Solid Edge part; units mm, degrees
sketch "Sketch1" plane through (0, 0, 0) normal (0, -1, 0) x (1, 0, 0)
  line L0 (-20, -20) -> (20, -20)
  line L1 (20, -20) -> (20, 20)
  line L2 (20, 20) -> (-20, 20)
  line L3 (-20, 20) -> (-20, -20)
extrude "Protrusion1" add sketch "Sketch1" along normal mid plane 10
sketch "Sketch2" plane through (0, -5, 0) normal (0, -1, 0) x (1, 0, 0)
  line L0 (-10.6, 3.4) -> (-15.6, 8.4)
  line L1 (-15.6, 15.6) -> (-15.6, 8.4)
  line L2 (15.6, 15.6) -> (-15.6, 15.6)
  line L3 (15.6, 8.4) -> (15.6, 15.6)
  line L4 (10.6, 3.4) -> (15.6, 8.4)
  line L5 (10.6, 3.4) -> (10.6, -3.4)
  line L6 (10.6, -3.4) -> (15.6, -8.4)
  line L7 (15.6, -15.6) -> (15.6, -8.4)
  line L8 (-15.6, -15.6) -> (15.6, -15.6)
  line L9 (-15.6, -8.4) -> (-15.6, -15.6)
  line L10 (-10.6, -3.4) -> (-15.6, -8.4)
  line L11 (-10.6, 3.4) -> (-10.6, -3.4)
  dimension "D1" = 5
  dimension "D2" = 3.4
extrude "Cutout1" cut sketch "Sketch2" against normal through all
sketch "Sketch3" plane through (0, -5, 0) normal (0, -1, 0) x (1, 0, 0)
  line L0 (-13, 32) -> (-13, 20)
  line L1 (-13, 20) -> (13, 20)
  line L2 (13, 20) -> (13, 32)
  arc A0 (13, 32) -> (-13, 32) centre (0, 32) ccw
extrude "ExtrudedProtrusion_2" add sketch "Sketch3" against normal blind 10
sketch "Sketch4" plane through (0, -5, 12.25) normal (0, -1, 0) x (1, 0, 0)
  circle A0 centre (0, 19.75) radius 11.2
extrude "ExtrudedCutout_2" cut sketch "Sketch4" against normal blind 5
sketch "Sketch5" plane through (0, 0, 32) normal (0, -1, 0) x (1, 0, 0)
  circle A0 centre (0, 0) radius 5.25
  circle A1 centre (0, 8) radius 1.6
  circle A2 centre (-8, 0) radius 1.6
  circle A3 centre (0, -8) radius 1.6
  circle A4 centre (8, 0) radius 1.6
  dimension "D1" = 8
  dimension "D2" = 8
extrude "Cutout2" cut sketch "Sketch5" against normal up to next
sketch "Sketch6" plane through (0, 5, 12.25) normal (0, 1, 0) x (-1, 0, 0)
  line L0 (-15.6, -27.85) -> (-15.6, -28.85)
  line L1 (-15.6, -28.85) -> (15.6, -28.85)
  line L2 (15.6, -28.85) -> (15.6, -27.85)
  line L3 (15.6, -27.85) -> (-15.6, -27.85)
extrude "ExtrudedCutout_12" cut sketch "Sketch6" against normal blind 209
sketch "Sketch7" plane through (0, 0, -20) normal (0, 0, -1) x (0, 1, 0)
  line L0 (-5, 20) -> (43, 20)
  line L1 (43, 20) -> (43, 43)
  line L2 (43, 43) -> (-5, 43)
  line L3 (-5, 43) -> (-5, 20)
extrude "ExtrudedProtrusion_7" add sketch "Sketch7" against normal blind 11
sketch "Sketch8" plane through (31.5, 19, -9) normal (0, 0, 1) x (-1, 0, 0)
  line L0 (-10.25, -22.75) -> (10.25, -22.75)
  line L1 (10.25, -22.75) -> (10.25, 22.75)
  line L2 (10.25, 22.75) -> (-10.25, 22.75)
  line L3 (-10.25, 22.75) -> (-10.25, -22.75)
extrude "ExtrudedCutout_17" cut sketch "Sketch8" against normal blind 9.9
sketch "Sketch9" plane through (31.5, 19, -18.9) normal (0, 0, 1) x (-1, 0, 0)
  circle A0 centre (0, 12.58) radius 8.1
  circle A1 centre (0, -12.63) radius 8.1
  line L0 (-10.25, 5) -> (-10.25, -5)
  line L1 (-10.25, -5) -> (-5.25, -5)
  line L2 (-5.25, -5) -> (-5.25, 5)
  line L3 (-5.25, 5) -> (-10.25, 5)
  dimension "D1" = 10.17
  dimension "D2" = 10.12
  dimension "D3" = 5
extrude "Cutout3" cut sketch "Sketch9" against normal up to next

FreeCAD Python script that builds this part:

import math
import FreeCAD as App
import Part
import Sketcher

V = App.Vector


def add_polygon(sketch, points):
    """Adds a closed chain of lines whose ends are joined by coincident constraints."""
    first, n = sketch.GeometryCount, len(points)
    for a, b in zip(points, points[1:] + points[:1]):
        sketch.addGeometry(Part.LineSegment(App.Vector(*a, 0), App.Vector(*b, 0)), False)
    for i in range(n):
        sketch.addConstraint(Sketcher.Constraint("Coincident", first + i, 2, first + (i + 1) % n, 1))

doc = App.newDocument("Part")
params = doc.addObject("Spreadsheet::Sheet", "Params")
for row, (alias, value) in enumerate([
    ("sketch1_width", "40 mm"),
    ("pad1_length", "10 mm"),
    ("sketch2_width", "31.2 mm"),
    ("sketch2_height", "6.8 mm"),
    ("sketch2_height2", "7.2 mm"),
    ("sketch3_radius", "13 mm"),
    ("sketch3_height", "12 mm"),
    ("pad2_length", "10 mm"),
    ("sketch4_diameter", "22.4 mm"),
    ("pocket2_length", "5 mm"),
    ("sketch5_diameter", "10.5 mm"),
    ("sketch5_diameter2", "3.2 mm"),
    ("sketch6_height", "1 mm"),
    ("sketch6_width", "31.2 mm"),
    ("pocket4_length", "209 mm"),
    ("sketch7_width", "23 mm"),
    ("sketch7_height", "48 mm"),
    ("pad3_length", "11 mm"),
    ("sketch8_width", "20.5 mm"),
    ("sketch8_height", "45.5 mm"),
    ("pocket5_length", "9.9 mm"),
    ("sketch9_diameter", "16.2 mm"),
    ("sketch9_width", "5 mm"),
    ("sketch9_height", "10 mm"),
], start=1):
    params.set(f"A{row}", alias)
    params.set(f"B{row}", "=" + value)
    params.setAlias(f"B{row}", alias)

body = doc.addObject("PartDesign::Body", "Body")

# Sketch on XZ plane
sketch1 = doc.addObject("Sketcher::SketchObject", "Sketch")
body.addObject(sketch1)
sketch1.AttachmentSupport = (doc.XZ_Plane, [""])
sketch1.MapMode = "FlatFace"
add_polygon(sketch1, [(-20, 20), (-20, -20), (20, -20), (20, 20)])  # lines 0-3
sketch1.addConstraint([
    Sketcher.Constraint("Vertical", 0),
    Sketcher.Constraint("Horizontal", 1),
    Sketcher.Constraint("Vertical", 2),
    Sketcher.Constraint("Horizontal", 3),
    Sketcher.Constraint("Symmetric", 0, 2, 2, 2, -1, 1),
    Sketcher.Constraint("Equal", 3, 0),
    Sketcher.Constraint("DistanceX", 1, 1, 1, 2, 40.0),
])
sketch1.setExpression("Constraints[10]", "Params.sketch1_width")
pad1 = doc.addObject("PartDesign::Pad", "Pad")
body.addObject(pad1)
pad1.Profile = sketch1
pad1.setExpression("Length", "Params.pad1_length")
pad1.Midplane = True

# Sketch on XZ plane
sketch2 = doc.addObject("Sketcher::SketchObject", "Sketch001")
body.addObject(sketch2)
sketch2.AttachmentSupport = (doc.XZ_Plane, [""])
sketch2.MapMode = "FlatFace"
sketch2.AttachmentOffset = App.Placement(V(0, 0, 5), App.Rotation())
add_polygon(sketch2, [(-15.6, 8.4), (-10.6, 3.4), (-10.6, -3.4), (-15.6, -8.4), (-15.6, -15.6), (15.6, -15.6), (15.6, -8.4), (10.6, -3.4), (10.6, 3.4), (15.6, 8.4), (15.6, 15.6), (-15.6, 15.6)])  # lines 0-11
sketch2.addConstraint([
    Sketcher.Constraint("Vertical", 1),
    Sketcher.Constraint("Vertical", 3),
    Sketcher.Constraint("Horizontal", 4),
    Sketcher.Constraint("Vertical", 5),
    Sketcher.Constraint("Vertical", 7),
    Sketcher.Constraint("Vertical", 9),
    Sketcher.Constraint("Horizontal", 10),
    Sketcher.Constraint("Vertical", 11),
    Sketcher.Constraint("Symmetric", 0, 2, 6, 2, -1, 1),
    Sketcher.Constraint("Symmetric", 2, 2, 8, 2, -1, 1),
    Sketcher.Constraint("Symmetric", 4, 2, 10, 2, -1, 1),
    Sketcher.Constraint("Symmetric", 2, 2, 5, 2, -2),
    Sketcher.Constraint("Perpendicular", 0, 2),
    Sketcher.Constraint("Perpendicular", 2, 6),
    Sketcher.Constraint("Perpendicular", 6, 8),
    Sketcher.Constraint("Horizontal", 1, 2, 6, 2),
    Sketcher.Constraint("DistanceX", 0, 2, -1, 1, 10.6),
    Sketcher.Constraint("DistanceX", 4, 1, 4, 2, 31.2),
    Sketcher.Constraint("DistanceY", 1, 2, 1, 1, 6.8),
    Sketcher.Constraint("DistanceY", 3, 2, 3, 1, 7.2),
])
sketch2.setExpression("Constraints[29]", "Params.sketch2_width")
sketch2.setExpression("Constraints[30]", "Params.sketch2_height")
sketch2.setExpression("Constraints[31]", "Params.sketch2_height2")
pocket1 = doc.addObject("PartDesign::Pocket", "Pocket")
body.addObject(pocket1)
pocket1.Profile = sketch2
pocket1.Type = "ThroughAll"

# Sketch on XZ plane
sketch3 = doc.addObject("Sketcher::SketchObject", "Sketch002")
body.addObject(sketch3)
sketch3.AttachmentSupport = (doc.XZ_Plane, [""])
sketch3.MapMode = "FlatFace"
sketch3.AttachmentOffset = App.Placement(V(0, 0, 5), App.Rotation())
sketch3.addGeometry([
    Part.ArcOfCircle(Part.Circle(V(0, 32, 0), V(0, 0, 1), 13), math.radians(0), math.radians(180)),
    Part.LineSegment(V(-13, 32, 0), V(-13, 20, 0)),
    Part.LineSegment(V(-13, 20, 0), V(13, 20, 0)),
    Part.LineSegment(V(13, 20, 0), V(13, 32, 0)),
], False)
sketch3.addConstraint([
    Sketcher.Constraint("Tangent", 0, 2, 1, 1),
    Sketcher.Constraint("Coincident", 1, 2, 2, 1),
    Sketcher.Constraint("Coincident", 2, 2, 3, 1),
    Sketcher.Constraint("Tangent", 3, 2, 0, 1),
    Sketcher.Constraint("Vertical", 1),
    Sketcher.Constraint("Horizontal", 2),
    Sketcher.Constraint("Vertical", 3),
    Sketcher.Constraint("PointOnObject", 0, 3, -2),
    Sketcher.Constraint("Radius", 0, 13.0),
    Sketcher.Constraint("DistanceY", 1, 2, 1, 1, 12.0),
    Sketcher.Constraint("DistanceY", -1, 1, 0, 3, 32.0),
])
sketch3.setExpression("Constraints[8]", "Params.sketch3_radius")
sketch3.setExpression("Constraints[9]", "Params.sketch3_height")
pad2 = doc.addObject("PartDesign::Pad", "Pad001")
body.addObject(pad2)
pad2.Profile = sketch3
pad2.setExpression("Length", "Params.pad2_length")
pad2.Reversed = True

# Sketch on XZ plane
sketch4 = doc.addObject("Sketcher::SketchObject", "Sketch003")
body.addObject(sketch4)
sketch4.AttachmentSupport = (doc.XZ_Plane, [""])
sketch4.MapMode = "FlatFace"
sketch4.AttachmentOffset = App.Placement(V(0, 0, 5), App.Rotation())
sketch4.addGeometry(Part.Circle(V(0, 32, 0), V(0, 0, 1), 11.2), False)
sketch4.addConstraint([
    Sketcher.Constraint("PointOnObject", 0, 3, -2),
    Sketcher.Constraint("Diameter", 0, 22.4),
    Sketcher.Constraint("DistanceY", -1, 1, 0, 3, 32.0),
])
sketch4.setExpression("Constraints[1]", "Params.sketch4_diameter")
pocket2 = doc.addObject("PartDesign::Pocket", "Pocket001")
body.addObject(pocket2)
pocket2.Profile = sketch4
pocket2.setExpression("Length", "Params.pocket2_length")

# Sketch on XZ plane
sketch5 = doc.addObject("Sketcher::SketchObject", "Sketch004")
body.addObject(sketch5)
sketch5.AttachmentSupport = (doc.XZ_Plane, [""])
sketch5.MapMode = "FlatFace"
sketch5.addGeometry([
    Part.Circle(V(0, 32, 0), V(0, 0, 1), 5.25),  # 0
    Part.Circle(V(0, 40, 0), V(0, 0, 1), 1.6),  # 1
    Part.Circle(V(-8, 32, 0), V(0, 0, 1), 1.6),  # 2
    Part.Circle(V(0, 24, 0), V(0, 0, 1), 1.6),  # 3
    Part.Circle(V(8, 32, 0), V(0, 0, 1), 1.6),  # 4
], False)
sketch5.addConstraint([
    Sketcher.Constraint("Equal", 1, 2),
    Sketcher.Constraint("Equal", 2, 3),
    Sketcher.Constraint("Equal", 3, 4),
    Sketcher.Constraint("Symmetric", 2, 3, 4, 3, -2),
    Sketcher.Constraint("PointOnObject", 0, 3, -2),
    Sketcher.Constraint("PointOnObject", 1, 3, -2),
    Sketcher.Constraint("PointOnObject", 3, 3, -2),
    Sketcher.Constraint("Horizontal", 0, 3, 2, 3),
    Sketcher.Constraint("Diameter", 0, 10.5),
    Sketcher.Constraint("Diameter", 1, 3.2),
    Sketcher.Constraint("DistanceY", -1, 1, 0, 3, 32.0),
    Sketcher.Constraint("DistanceY", -1, 1, 1, 3, 40.0),
    Sketcher.Constraint("DistanceX", 2, 3, -1, 1, 8.0),
    Sketcher.Constraint("DistanceY", -1, 1, 3, 3, 24.0),
])
sketch5.setExpression("Constraints[8]", "Params.sketch5_diameter")
sketch5.setExpression("Constraints[9]", "Params.sketch5_diameter2")
pocket3 = doc.addObject("PartDesign::Pocket", "Pocket002")
body.addObject(pocket3)
pocket3.Profile = sketch5
pocket3.Type = "UpToFirst"

# Sketch on XZ plane
sketch6 = doc.addObject("Sketcher::SketchObject", "Sketch005")
body.addObject(sketch6)
sketch6.AttachmentSupport = (doc.XZ_Plane, [""])
sketch6.MapMode = "FlatFace"
sketch6.AttachmentOffset = App.Placement(V(0, 0, -5), App.Rotation())
add_polygon(sketch6, [(-15.6, -15.6), (15.6, -15.6), (15.6, -16.6), (-15.6, -16.6)])  # lines 0-3
sketch6.addConstraint([
    Sketcher.Constraint("Horizontal", 0),
    Sketcher.Constraint("Vertical", 1),
    Sketcher.Constraint("Horizontal", 2),
    Sketcher.Constraint("Vertical", 3),
    Sketcher.Constraint("DistanceY", 1, 2, 1, 1, 1.0),
    Sketcher.Constraint("DistanceX", 0, 1, 0, 2, 31.2),
    Sketcher.Constraint("DistanceX", -1, 1, 0, 2, 15.6),
    Sketcher.Constraint("DistanceY", 0, 2, -1, 1, 15.6),
])
sketch6.setExpression("Constraints[8]", "Params.sketch6_height")
sketch6.setExpression("Constraints[9]", "Params.sketch6_width")
pocket4 = doc.addObject("PartDesign::Pocket", "Pocket003")
body.addObject(pocket4)
pocket4.Profile = sketch6
pocket4.setExpression("Length", "Params.pocket4_length")
pocket4.Reversed = True

# Sketch on XY plane
sketch7 = doc.addObject("Sketcher::SketchObject", "Sketch006")
body.addObject(sketch7)
sketch7.AttachmentSupport = (doc.XY_Plane, [""])
sketch7.MapMode = "FlatFace"
sketch7.AttachmentOffset = App.Placement(V(0, 0, -20), App.Rotation())
add_polygon(sketch7, [(43, -5), (20, -5), (20, 43), (43, 43)])  # lines 0-3
sketch7.addConstraint([
    Sketcher.Constraint("Horizontal", 0),
    Sketcher.Constraint("Vertical", 1),
    Sketcher.Constraint("Horizontal", 2),
    Sketcher.Constraint("Vertical", 3),
    Sketcher.Constraint("DistanceX", 0, 2, 0, 1, 23.0),
    Sketcher.Constraint("DistanceY", 1, 1, 1, 2, 48.0),
    Sketcher.Constraint("DistanceX", -1, 1, 0, 2, 20.0),
    Sketcher.Constraint("DistanceY", 0, 2, -1, 1, 5.0),
])
sketch7.setExpression("Constraints[8]", "Params.sketch7_width")
sketch7.setExpression("Constraints[9]", "Params.sketch7_height")
pad3 = doc.addObject("PartDesign::Pad", "Pad002")
body.addObject(pad3)
pad3.Profile = sketch7
pad3.setExpression("Length", "Params.pad3_length")

# Sketch on XY plane
sketch8 = doc.addObject("Sketcher::SketchObject", "Sketch007")
body.addObject(sketch8)
sketch8.AttachmentSupport = (doc.XY_Plane, [""])
sketch8.MapMode = "FlatFace"
sketch8.AttachmentOffset = App.Placement(V(0, 0, -9), App.Rotation())
add_polygon(sketch8, [(41.75, -3.75), (41.75, 41.75), (21.25, 41.75), (21.25, -3.75)])  # lines 0-3
sketch8.addConstraint([
    Sketcher.Constraint("Vertical", 0),
    Sketcher.Constraint("Horizontal", 1),
    Sketcher.Constraint("Vertical", 2),
    Sketcher.Constraint("Horizontal", 3),
    Sketcher.Constraint("DistanceX", 1, 2, 1, 1, 20.5),
    Sketcher.Constraint("DistanceY", 0, 1, 0, 2, 45.5),
    Sketcher.Constraint("DistanceX", -1, 1, 0, 2, 41.75),
    Sketcher.Constraint("DistanceY", -1, 1, 0, 2, 41.75),
])
sketch8.setExpression("Constraints[8]", "Params.sketch8_width")
sketch8.setExpression("Constraints[9]", "Params.sketch8_height")
pocket5 = doc.addObject("PartDesign::Pocket", "Pocket004")
body.addObject(pocket5)
pocket5.Profile = sketch8
pocket5.setExpression("Length", "Params.pocket5_length")

# Sketch on XY plane
sketch9 = doc.addObject("Sketcher::SketchObject", "Sketch008")
body.addObject(sketch9)
sketch9.AttachmentSupport = (doc.XY_Plane, [""])
sketch9.MapMode = "FlatFace"
sketch9.AttachmentOffset = App.Placement(V(0, 0, -18.9), App.Rotation())
sketch9.addGeometry(Part.Circle(V(31.5, 6.42, 0), V(0, 0, 1), 8.1), False)  # 0
sketch9.addGeometry(Part.Circle(V(31.5, 31.63, 0), V(0, 0, 1), 8.1), False)  # 1
add_polygon(sketch9, [(36.75, 14), (41.75, 14), (41.75, 24), (36.75, 24)])  # lines 2-5
sketch9.addConstraint([
    Sketcher.Constraint("Horizontal", 2),
    Sketcher.Constraint("Vertical", 3),
    Sketcher.Constraint("Horizontal", 4),
    Sketcher.Constraint("Vertical", 5),
    Sketcher.Constraint("Equal", 0, 1),
    Sketcher.Constraint("Vertical", 0, 3, 1, 3),
    Sketcher.Constraint("Diameter", 0, 16.2),
    Sketcher.Constraint("DistanceX", 2, 1, 2, 2, 5.0),
    Sketcher.Constraint("DistanceY", 3, 1, 3, 2, 10.0),
    Sketcher.Constraint("DistanceY", -1, 1, 2, 2, 14.0),
    Sketcher.Constraint("DistanceX", -1, 1, 0, 3, 31.5),
    Sketcher.Constraint("DistanceY", -1, 1, 0, 3, 6.42),
    Sketcher.Constraint("DistanceY", -1, 1, 1, 3, 31.63),
    Sketcher.Constraint("DistanceX", -1, 1, 2, 2, 41.75),
])
sketch9.setExpression("Constraints[10]", "Params.sketch9_diameter")
sketch9.setExpression("Constraints[11]", "Params.sketch9_width")
sketch9.setExpression("Constraints[12]", "Params.sketch9_height")
pocket6 = doc.addObject("PartDesign::Pocket", "Pocket005")
body.addObject(pocket6)
pocket6.Profile = sketch9
pocket6.Type = "UpToFirst"

doc.recompute()
